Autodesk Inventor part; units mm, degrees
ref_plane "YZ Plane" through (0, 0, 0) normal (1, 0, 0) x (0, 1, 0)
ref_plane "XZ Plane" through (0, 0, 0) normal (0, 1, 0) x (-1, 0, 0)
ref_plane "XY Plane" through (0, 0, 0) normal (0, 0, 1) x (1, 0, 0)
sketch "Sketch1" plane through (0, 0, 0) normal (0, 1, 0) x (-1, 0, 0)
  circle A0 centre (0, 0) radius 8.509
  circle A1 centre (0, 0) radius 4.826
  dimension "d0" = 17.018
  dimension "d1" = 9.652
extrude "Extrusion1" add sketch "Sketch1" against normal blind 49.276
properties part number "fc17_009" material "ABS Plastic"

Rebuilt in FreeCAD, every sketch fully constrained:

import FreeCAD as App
import Part
import Sketcher

V = App.Vector
Q = App.Units.Quantity

doc = App.newDocument("Part")
body = doc.addObject("PartDesign::Body", "Body")

# Sketch on XZ plane
sketch1 = body.newObject("Sketcher::SketchObject", "Sketch")
sketch1.AttachmentSupport = (doc.getObject("XZ_Plane"), [""])
sketch1.MapMode = "FlatFace"
sketch1.addGeometry([
    Part.Circle(V(0, 0, 0), V(0, 0, 1), 8.509),
    Part.Circle(V(0, 0, 0), V(0, 0, 1), 4.826),
], False)
sketch1.addConstraint([
    Sketcher.Constraint("Coincident", 0, 3, -1, 1),
    Sketcher.Constraint("Coincident", 1, 3, -1, 1),
    Sketcher.Constraint("Diameter", 0, Q("0.67 in")),
    Sketcher.Constraint("Diameter", 1, Q("0.38 in")),
])
pad1 = body.newObject("PartDesign::Pad", "Pad")
pad1.Profile = sketch1
pad1.Length = Q("1.94 in")

doc.recompute()
